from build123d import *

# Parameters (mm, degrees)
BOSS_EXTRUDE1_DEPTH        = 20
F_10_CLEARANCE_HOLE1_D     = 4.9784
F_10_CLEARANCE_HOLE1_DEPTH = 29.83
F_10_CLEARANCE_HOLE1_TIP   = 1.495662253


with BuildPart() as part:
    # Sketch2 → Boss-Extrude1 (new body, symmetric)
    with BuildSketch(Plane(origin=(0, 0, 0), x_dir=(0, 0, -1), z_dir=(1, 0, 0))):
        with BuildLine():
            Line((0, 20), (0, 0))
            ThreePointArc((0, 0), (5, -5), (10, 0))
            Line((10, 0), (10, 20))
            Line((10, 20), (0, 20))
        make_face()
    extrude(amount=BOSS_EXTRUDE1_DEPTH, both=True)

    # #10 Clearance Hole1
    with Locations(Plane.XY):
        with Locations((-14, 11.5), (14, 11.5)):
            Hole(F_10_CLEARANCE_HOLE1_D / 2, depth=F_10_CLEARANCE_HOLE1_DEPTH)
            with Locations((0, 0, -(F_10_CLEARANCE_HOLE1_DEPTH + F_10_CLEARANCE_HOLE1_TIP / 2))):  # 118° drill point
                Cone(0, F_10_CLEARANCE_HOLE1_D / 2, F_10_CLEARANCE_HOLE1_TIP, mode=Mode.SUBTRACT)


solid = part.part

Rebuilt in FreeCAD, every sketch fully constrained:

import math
import FreeCAD as App
import Part
import Sketcher

V = App.Vector

doc = App.newDocument("Part")
body = doc.addObject("PartDesign::Body", "Body")

# Sketch on YZ plane
sketch1 = body.newObject("Sketcher::SketchObject", "Sketch")
sketch1.AttachmentSupport = (doc.getObject("YZ_Plane"), [""])
sketch1.MapMode = "FlatFace"
sketch1.addGeometry([
    Part.LineSegment(V(20, 0, 0), V(0, 0, 0)),
    Part.ArcOfCircle(Part.Circle(V(0, -5, 0), V(0, 0, 1), 5), math.radians(90), math.radians(270)),
    Part.LineSegment(V(0, -10, 0), V(20, -10, 0)),
    Part.LineSegment(V(20, -10, 0), V(20, 0, 0)),
], False)
sketch1.addConstraint([
    Sketcher.Constraint("Tangent", 0, 2, 1, 1),
    Sketcher.Constraint("Tangent", 1, 2, 2, 1),
    Sketcher.Constraint("Coincident", 2, 2, 3, 1),
    Sketcher.Constraint("Coincident", 3, 2, 0, 1),
    Sketcher.Constraint("Horizontal", 0),
    Sketcher.Constraint("Horizontal", 2),
    Sketcher.Constraint("Vertical", 3),
    Sketcher.Constraint("Coincident", 0, 2, -1, 1),
    Sketcher.Constraint("Radius", 1, 5.0),
    Sketcher.Constraint("DistanceX", 0, 2, 0, 1, 20.0),
])
pad1 = body.newObject("PartDesign::Pad", "Pad")
pad1.Profile = sketch1
pad1.Length = 40
pad1.Midplane = True

# Sketch on XY plane
sketch2 = body.newObject("Sketcher::SketchObject", "Sketch001")
sketch2.AttachmentSupport = (doc.getObject("XY_Plane"), [""])
sketch2.MapMode = "FlatFace"
sketch2.addGeometry([
    Part.Circle(V(-14, 11.5, 0), V(0, 0, 1), 2.5),
    Part.Circle(V(14, 11.5, 0), V(0, 0, 1), 2.5),
], False)
sketch2.addConstraint([
    Sketcher.Constraint("Equal", 0, 1),
    Sketcher.Constraint("Symmetric", 0, 3, 1, 3, -2),
    Sketcher.Constraint("DistanceX", 0, 3, -1, 1, 14.0),
    Sketcher.Constraint("Diameter", 0, 4.9784),
    Sketcher.Constraint("DistanceY", -1, 1, 0, 3, 11.5),
])
doc.recompute()
hole = body.newObject("PartDesign::Hole", "Hole")
hole.Profile = sketch2
hole.ThreadType = "None"
hole.Diameter = 4.9784
hole.DepthType = "Dimension"
hole.Depth = 29.83
hole.DrillPoint = "Angled"
hole.DrillPointAngle = 118

doc.recompute()
